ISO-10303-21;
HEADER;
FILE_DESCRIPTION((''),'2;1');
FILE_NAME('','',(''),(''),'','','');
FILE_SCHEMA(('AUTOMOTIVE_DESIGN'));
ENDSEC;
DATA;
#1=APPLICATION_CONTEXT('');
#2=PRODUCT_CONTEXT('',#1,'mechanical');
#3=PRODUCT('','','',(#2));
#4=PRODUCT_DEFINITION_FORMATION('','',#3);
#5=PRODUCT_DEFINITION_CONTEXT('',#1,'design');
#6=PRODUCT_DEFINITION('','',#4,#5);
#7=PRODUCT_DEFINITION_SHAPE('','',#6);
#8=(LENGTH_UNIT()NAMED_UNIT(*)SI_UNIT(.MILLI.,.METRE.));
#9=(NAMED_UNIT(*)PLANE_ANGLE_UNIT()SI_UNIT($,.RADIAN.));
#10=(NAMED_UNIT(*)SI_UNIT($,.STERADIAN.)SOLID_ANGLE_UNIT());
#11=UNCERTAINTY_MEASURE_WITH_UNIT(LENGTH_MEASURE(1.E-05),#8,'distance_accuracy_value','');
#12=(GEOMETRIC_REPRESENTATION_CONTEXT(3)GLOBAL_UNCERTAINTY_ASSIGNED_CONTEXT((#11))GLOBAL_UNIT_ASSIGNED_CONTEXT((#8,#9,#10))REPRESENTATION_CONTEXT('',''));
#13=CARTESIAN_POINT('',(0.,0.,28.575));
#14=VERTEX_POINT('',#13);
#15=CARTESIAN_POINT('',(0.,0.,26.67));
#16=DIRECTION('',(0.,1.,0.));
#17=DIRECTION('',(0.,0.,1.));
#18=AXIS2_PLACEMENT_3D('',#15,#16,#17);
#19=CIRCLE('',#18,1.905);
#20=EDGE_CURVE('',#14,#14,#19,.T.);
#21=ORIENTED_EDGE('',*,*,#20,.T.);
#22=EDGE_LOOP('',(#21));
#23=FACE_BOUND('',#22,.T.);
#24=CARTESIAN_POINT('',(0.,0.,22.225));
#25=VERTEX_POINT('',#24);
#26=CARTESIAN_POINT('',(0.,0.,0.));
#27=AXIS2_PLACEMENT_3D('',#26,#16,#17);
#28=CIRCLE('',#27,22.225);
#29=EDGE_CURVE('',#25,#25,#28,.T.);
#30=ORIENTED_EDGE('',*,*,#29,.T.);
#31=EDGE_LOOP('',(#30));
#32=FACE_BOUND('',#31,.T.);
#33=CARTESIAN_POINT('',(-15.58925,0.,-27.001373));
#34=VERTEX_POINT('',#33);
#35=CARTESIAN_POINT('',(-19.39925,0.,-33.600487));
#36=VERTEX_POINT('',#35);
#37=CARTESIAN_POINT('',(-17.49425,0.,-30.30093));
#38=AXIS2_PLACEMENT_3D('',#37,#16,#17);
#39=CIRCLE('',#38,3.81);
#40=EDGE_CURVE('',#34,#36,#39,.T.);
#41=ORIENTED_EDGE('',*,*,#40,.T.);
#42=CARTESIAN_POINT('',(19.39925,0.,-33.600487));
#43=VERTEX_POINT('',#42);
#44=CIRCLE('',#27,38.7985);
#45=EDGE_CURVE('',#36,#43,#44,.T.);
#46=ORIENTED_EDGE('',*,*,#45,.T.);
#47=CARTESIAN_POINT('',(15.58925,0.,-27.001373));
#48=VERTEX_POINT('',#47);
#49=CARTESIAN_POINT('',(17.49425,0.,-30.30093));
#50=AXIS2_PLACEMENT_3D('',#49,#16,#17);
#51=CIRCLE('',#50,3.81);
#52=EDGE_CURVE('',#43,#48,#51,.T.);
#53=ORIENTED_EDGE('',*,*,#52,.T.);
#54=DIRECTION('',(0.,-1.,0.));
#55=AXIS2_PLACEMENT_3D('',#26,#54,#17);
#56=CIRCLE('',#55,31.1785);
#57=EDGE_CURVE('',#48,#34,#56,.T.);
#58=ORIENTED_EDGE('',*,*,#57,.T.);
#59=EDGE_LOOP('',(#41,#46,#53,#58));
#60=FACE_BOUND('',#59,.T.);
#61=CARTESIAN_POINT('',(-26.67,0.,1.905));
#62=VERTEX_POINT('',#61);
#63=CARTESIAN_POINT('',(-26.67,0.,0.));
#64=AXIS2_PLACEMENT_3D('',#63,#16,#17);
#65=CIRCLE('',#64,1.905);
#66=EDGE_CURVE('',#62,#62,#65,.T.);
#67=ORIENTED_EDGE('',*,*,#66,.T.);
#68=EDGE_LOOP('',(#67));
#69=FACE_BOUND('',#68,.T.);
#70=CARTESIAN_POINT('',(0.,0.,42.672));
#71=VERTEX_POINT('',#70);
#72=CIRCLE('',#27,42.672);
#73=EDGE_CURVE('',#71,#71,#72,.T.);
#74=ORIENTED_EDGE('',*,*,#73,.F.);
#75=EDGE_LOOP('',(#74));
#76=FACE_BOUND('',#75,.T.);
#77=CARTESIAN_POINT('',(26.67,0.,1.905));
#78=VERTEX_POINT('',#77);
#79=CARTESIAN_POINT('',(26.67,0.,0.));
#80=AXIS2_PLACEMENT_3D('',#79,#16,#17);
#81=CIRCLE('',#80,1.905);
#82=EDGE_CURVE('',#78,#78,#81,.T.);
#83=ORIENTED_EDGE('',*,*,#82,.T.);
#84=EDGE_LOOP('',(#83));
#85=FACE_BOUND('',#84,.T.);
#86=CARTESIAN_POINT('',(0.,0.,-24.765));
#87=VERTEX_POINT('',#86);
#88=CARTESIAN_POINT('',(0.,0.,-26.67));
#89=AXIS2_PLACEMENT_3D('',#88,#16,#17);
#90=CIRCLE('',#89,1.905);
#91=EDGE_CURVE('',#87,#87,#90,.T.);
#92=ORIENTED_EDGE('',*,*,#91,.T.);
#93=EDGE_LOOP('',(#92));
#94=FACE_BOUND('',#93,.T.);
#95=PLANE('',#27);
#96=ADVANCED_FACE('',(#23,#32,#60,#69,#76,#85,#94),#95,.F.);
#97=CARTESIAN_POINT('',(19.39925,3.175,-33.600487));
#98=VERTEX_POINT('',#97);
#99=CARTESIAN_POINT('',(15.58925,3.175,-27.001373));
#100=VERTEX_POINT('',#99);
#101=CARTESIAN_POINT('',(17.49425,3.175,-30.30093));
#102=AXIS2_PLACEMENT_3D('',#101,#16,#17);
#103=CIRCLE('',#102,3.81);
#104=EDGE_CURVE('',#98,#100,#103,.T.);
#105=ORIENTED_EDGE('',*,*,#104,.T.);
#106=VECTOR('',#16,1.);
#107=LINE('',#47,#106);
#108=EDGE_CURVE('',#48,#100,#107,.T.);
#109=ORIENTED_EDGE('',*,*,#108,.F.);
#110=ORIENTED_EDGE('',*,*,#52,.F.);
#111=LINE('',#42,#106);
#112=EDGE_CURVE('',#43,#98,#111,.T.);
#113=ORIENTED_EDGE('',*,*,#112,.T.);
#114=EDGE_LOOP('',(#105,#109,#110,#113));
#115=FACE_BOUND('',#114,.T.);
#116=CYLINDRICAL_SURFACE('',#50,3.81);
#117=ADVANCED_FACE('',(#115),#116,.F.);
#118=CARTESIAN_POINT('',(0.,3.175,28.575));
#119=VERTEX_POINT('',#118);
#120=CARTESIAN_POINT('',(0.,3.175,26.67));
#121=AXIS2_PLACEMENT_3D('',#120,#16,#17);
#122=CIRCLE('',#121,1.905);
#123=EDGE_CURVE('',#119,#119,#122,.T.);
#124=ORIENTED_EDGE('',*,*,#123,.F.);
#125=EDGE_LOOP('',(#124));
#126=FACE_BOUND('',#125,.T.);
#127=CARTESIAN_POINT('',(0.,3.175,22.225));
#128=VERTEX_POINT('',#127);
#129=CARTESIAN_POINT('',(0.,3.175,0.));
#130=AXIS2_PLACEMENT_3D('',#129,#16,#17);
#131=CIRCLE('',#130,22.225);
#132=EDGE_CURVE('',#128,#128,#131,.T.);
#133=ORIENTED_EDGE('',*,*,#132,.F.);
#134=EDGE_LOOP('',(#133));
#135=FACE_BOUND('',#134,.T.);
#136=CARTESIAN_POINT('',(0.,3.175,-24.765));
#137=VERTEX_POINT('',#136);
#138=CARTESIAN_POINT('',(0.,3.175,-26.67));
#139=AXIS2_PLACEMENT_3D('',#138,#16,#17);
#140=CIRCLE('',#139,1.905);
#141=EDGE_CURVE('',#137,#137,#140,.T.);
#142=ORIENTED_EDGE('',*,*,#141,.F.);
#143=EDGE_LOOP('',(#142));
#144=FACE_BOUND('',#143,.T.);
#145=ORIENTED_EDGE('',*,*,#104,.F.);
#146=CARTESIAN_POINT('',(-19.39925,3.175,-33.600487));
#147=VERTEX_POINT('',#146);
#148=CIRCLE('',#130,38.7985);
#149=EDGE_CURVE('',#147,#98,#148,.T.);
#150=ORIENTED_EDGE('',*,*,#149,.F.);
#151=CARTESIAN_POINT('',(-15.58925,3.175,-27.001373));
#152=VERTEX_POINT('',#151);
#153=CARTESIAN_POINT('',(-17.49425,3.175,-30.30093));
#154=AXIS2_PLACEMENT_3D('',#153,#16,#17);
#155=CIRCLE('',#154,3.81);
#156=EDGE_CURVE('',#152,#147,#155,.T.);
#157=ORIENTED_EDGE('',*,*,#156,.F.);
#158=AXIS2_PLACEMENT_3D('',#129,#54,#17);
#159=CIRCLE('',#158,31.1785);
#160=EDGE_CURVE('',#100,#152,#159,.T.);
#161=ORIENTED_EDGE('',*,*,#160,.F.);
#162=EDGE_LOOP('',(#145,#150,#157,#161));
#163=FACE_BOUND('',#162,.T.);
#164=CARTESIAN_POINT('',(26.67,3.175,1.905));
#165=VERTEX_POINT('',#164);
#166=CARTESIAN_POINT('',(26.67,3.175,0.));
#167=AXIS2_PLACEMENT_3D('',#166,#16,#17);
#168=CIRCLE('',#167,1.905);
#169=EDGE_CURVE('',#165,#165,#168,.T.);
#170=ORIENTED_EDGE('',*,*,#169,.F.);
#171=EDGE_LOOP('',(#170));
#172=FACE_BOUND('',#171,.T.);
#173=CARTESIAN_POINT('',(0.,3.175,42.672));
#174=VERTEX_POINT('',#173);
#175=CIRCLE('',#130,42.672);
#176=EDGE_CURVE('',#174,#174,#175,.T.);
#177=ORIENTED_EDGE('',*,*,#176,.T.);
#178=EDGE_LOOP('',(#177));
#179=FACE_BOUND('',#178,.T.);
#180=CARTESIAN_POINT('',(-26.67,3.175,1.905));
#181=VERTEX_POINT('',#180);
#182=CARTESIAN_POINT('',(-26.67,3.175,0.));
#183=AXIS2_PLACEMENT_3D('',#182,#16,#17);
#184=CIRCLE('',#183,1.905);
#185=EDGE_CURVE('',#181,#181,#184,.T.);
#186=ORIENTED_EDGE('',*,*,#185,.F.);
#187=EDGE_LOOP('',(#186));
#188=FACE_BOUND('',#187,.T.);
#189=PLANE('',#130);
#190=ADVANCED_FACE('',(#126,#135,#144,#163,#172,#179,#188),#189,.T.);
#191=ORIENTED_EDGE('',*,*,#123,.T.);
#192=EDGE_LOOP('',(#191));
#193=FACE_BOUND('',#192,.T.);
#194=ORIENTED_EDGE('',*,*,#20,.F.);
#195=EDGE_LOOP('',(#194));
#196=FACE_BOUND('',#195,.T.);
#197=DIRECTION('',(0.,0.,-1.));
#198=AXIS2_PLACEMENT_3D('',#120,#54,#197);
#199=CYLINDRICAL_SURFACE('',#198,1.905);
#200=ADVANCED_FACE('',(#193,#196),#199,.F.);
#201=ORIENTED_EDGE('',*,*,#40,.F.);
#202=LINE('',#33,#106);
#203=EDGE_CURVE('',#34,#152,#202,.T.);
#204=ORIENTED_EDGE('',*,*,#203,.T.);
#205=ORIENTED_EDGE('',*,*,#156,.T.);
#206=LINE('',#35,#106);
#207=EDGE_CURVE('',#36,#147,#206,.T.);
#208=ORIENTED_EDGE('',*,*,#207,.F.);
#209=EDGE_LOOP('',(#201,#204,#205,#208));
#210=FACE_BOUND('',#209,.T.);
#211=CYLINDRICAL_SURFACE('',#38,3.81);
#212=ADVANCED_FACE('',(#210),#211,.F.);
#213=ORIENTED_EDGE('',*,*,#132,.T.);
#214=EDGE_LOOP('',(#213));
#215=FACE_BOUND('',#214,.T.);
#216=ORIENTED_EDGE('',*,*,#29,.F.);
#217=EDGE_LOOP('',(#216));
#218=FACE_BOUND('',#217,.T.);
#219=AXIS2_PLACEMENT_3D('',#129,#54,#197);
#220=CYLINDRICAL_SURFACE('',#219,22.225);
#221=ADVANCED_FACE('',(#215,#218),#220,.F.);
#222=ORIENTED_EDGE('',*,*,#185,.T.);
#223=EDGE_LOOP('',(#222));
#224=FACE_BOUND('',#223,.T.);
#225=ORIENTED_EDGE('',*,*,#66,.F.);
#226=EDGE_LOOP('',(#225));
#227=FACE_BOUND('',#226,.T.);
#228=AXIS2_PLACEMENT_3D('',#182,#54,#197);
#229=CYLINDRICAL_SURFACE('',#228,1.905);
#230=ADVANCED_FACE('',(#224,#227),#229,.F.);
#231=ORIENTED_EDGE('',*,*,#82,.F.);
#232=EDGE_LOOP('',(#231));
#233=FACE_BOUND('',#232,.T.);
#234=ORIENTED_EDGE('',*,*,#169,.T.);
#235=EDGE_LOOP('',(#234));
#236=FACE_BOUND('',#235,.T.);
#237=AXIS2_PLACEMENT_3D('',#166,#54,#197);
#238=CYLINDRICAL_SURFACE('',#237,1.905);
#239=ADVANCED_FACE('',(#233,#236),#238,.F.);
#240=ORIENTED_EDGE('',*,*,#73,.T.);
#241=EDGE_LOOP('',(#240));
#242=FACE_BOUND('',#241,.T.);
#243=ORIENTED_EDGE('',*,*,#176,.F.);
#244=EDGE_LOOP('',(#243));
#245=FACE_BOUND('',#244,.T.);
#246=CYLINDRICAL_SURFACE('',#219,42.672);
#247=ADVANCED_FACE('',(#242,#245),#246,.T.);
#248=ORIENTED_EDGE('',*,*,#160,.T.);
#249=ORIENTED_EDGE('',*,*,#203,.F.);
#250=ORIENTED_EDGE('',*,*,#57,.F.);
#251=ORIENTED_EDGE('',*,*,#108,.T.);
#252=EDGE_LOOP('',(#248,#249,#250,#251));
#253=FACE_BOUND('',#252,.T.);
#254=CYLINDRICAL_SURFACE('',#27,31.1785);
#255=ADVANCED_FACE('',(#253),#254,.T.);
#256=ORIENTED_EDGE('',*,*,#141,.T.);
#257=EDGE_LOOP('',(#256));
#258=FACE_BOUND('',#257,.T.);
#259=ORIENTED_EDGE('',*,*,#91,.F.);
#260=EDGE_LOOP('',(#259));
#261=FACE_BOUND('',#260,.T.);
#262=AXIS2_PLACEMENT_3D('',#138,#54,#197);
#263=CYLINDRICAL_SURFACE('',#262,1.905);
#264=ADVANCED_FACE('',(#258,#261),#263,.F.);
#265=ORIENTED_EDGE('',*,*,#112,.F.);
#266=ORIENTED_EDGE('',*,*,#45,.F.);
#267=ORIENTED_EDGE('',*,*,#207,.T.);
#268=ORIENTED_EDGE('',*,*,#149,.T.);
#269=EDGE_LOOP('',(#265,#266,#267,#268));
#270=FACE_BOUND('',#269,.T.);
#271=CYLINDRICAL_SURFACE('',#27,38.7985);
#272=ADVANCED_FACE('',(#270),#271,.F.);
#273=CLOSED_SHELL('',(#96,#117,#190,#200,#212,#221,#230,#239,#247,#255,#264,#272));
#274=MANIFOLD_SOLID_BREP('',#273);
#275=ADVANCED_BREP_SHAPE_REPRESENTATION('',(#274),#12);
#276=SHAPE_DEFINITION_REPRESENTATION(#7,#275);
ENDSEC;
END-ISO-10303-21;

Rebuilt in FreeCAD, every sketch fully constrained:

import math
import FreeCAD as App
import Part
import Sketcher

V = App.Vector
Q = App.Units.Quantity

doc = App.newDocument("Part")
body = doc.addObject("PartDesign::Body", "Body")

# Sketch on XZ plane
sketch1 = doc.addObject("Sketcher::SketchObject", "Sketch")
body.addObject(sketch1)
sketch1.AttachmentSupport = (doc.XZ_Plane, [""])
sketch1.MapMode = "FlatFace"
sketch1.addGeometry([
    Part.Circle(V(0, 0, 0), V(0, 0, 1), 42.7),  # 0
    Part.Circle(V(0, -26.7, 0), V(0, 0, 1), 1.9),  # 1
    Part.Circle(V(-26.7, 0, 0), V(0, 0, 1), 1.9),  # 2
    Part.Circle(V(26.7, 0, 0), V(0, 0, 1), 1.9),  # 3
    Part.Circle(V(0, 0, 0), V(0, 0, 1), 22.2),  # 4
    Part.Circle(V(0, 26.7, 0), V(0, 0, 1), 1.9),  # 5
], False)
sketch1.addConstraint([
    Sketcher.Constraint("Coincident", 0, 3, -1, 1),
    Sketcher.Constraint("Coincident", 4, 3, -1, 1),
    Sketcher.Constraint("Equal", 1, 2),
    Sketcher.Constraint("Equal", 2, 3),
    Sketcher.Constraint("Equal", 3, 5),
    Sketcher.Constraint("Symmetric", 2, 3, 3, 3, -1, 1),
    Sketcher.Constraint("Symmetric", 1, 3, 5, 3, -1, 1),
    Sketcher.Constraint("PointOnObject", 1, 3, -2),
    Sketcher.Constraint("PointOnObject", 2, 3, -1),
    Sketcher.Constraint("Diameter", 0, Q("3.36 in")),
    Sketcher.Constraint("Diameter", 1, Q("0.15 in")),
    Sketcher.Constraint("Diameter", 4, Q("1.75 in")),
    Sketcher.Constraint("DistanceX", 2, 3, 3, 3, Q("2.1 in")),
    Sketcher.Constraint("DistanceY", 1, 3, 5, 3, Q("2.1 in")),
])
pad1 = doc.addObject("PartDesign::Pad", "Pad")
body.addObject(pad1)
pad1.Profile = sketch1
pad1.Length = Q("0.125 in")
pad1.Reversed = True

# Sketch on XZ plane
sketch2 = doc.addObject("Sketcher::SketchObject", "Sketch001")
body.addObject(sketch2)
sketch2.AttachmentSupport = (doc.XZ_Plane, [""])
sketch2.MapMode = "FlatFace"
sketch2.AttachmentOffset = App.Placement(V(0, 0, -0.125 * 25.4), App.Rotation())
sketch2.addGeometry([
    Part.ArcOfCircle(Part.Circle(V(-17.5, -30.3, 0), V(0, 0, 1), 3.8), math.radians(-120), math.radians(60)),
    Part.ArcOfCircle(Part.Circle(V(0, 0, 0), V(0, 0, 1), 38.8), math.radians(-60), math.radians(240)),
    Part.ArcOfCircle(Part.Circle(V(17.5, -30.3, 0), V(0, 0, 1), 3.8), math.radians(120), math.radians(300)),
    Part.ArcOfCircle(Part.Circle(V(0, 0, 0), V(0, 0, 1), 31.2), math.radians(-60), math.radians(240)),
], False)
sketch2.addConstraint([
    Sketcher.Constraint("Tangent", 0, 1, 1, 2),
    Sketcher.Constraint("Tangent", 1, 1, 2, 2),
    Sketcher.Constraint("Tangent", 2, 1, 3, 1),
    Sketcher.Constraint("Tangent", 3, 2, 0, 2),
    Sketcher.Constraint("Coincident", 1, 3, -1, 1),
    Sketcher.Constraint("Coincident", 3, 3, -1, 1),
    Sketcher.Constraint("Horizontal", 0, 3, 2, 3),
    Sketcher.Constraint("Radius", 0, Q("0.15 in")),
    Sketcher.Constraint("Radius", 1, Q("1.5275 in")),
    Sketcher.Constraint("DistanceX", 2, 1, 1, 1, Q("0.15 in")),
])
pocket1 = doc.addObject("PartDesign::Pocket", "Pocket")
body.addObject(pocket1)
pocket1.Profile = sketch2
pocket1.Type = "ThroughAll"
pocket1.Reversed = True

doc.recompute()
